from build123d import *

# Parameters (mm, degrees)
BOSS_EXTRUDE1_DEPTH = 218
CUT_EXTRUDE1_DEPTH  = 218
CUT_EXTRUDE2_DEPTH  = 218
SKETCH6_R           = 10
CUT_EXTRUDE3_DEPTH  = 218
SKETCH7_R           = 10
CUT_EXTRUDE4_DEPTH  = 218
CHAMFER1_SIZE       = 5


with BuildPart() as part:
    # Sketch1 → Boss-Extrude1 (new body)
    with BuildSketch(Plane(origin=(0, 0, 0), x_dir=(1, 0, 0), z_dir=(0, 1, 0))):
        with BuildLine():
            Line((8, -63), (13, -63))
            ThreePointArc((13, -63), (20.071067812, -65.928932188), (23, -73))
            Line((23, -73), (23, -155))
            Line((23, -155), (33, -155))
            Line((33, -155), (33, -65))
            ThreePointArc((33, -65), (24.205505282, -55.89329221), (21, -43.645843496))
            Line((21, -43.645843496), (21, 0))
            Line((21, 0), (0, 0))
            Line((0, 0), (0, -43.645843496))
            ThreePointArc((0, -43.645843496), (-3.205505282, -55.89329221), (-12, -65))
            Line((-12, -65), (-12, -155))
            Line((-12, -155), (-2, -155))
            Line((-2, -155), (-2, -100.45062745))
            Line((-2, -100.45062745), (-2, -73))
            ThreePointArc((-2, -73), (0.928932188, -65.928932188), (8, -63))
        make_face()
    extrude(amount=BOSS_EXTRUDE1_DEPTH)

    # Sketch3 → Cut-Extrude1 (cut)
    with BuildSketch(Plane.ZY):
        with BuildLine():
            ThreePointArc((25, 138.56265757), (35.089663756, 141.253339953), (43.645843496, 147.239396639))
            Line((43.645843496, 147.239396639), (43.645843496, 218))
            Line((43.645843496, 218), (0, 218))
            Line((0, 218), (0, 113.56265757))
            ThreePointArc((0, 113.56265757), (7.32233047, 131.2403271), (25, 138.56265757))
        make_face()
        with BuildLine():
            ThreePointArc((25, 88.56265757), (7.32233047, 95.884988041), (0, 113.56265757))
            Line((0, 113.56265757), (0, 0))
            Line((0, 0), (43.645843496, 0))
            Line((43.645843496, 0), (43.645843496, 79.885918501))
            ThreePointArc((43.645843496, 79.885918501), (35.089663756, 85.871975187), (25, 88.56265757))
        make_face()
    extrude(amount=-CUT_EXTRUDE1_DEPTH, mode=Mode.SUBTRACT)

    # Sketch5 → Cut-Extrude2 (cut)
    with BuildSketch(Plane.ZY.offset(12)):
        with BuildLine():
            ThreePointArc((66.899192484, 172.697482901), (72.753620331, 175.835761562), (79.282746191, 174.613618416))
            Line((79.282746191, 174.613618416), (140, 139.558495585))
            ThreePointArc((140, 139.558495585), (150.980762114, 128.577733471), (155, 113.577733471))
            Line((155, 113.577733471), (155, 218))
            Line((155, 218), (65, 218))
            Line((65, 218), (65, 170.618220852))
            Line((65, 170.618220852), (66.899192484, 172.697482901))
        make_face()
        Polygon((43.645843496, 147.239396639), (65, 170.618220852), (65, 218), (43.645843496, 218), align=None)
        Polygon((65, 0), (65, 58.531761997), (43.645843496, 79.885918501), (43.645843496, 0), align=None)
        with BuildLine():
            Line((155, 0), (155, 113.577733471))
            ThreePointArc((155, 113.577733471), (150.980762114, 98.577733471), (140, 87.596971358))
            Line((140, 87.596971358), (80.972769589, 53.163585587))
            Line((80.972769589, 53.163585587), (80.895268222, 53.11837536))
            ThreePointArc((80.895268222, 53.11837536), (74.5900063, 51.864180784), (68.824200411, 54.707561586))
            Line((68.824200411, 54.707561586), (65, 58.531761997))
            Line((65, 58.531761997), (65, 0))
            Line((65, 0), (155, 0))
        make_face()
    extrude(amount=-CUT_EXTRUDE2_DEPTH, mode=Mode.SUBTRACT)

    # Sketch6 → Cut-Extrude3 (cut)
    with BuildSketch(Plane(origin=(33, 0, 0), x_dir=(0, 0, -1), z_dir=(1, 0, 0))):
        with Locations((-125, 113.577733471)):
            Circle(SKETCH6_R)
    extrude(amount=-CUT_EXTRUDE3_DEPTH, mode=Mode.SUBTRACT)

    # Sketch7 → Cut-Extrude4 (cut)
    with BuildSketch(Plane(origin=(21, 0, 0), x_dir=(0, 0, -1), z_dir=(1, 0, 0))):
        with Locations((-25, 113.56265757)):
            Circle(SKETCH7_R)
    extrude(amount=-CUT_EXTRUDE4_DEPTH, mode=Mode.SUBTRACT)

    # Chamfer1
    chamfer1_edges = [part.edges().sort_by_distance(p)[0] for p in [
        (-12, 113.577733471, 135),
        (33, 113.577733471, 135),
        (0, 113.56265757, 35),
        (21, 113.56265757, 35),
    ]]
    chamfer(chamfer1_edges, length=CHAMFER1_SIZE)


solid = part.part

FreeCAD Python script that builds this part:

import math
import FreeCAD as App
import Part
import Sketcher
from FreeCAD import Vector
Q = App.Units.Quantity


def edges_at(feature, points):
    """Names of the edges that pass closest to the given points."""
    edges = feature.Shape.Edges
    near = lambda p: min(range(len(edges)), key=lambda i: edges[i].distToShape(Part.Vertex(*p))[0])
    return sorted({f"Edge{near(p) + 1}" for p in points})

doc = App.newDocument("Part")
body = doc.addObject("PartDesign::Body", "Body")

sketch1 = body.newObject("Sketcher::SketchObject", "Sketch")
sketch1.AttachmentSupport = (doc.getObject("XZ_Plane"), [""])
sketch1.MapMode = "FlatFace"
sketch1.addGeometry(Part.LineSegment(Vector(8, 63, 0), Vector(13, 63, 0)), False)
sketch1.addGeometry(Part.ArcOfCircle(Part.Circle(Vector(13, 73, 0), Vector(0, 0, 1), 10), math.radians(-90), math.radians(0)), False)
sketch1.addGeometry(Part.LineSegment(Vector(23, 73, 0), Vector(23, 155, 0)), False)
sketch1.addGeometry(Part.LineSegment(Vector(23, 155, 0), Vector(33, 155, 0)), False)
sketch1.addGeometry(Part.LineSegment(Vector(33, 155, 0), Vector(33, 65, 0)), False)
sketch1.addGeometry(Part.ArcOfCircle(Part.Circle(Vector(46, 43.645843, 0), Vector(0, 0, 1), 25), math.radians(121.332251), math.radians(180)), False)
sketch1.addGeometry(Part.LineSegment(Vector(21, 43.645843, 0), Vector(21, 0, 0)), False)
sketch1.addGeometry(Part.LineSegment(Vector(21, 0, 0), Vector(0, 0, 0)), False)
sketch1.addGeometry(Part.LineSegment(Vector(0, 0, 0), Vector(0, 43.645843, 0)), False)
sketch1.addGeometry(Part.ArcOfCircle(Part.Circle(Vector(-25, 43.645843, 0), Vector(0, 0, 1), 25), math.radians(0), math.radians(58.667749)), False)
sketch1.addGeometry(Part.LineSegment(Vector(-12, 65, 0), Vector(-12, 155, 0)), False)
sketch1.addGeometry(Part.LineSegment(Vector(-12, 155, 0), Vector(-2, 155, 0)), False)
sketch1.addGeometry(Part.LineSegment(Vector(-2, 155, 0), Vector(-2, 73, 0)), False)
sketch1.addGeometry(Part.ArcOfCircle(Part.Circle(Vector(8, 73, 0), Vector(0, 0, 1), 10), math.radians(180), math.radians(270)), False)
sketch1.addConstraint(Sketcher.Constraint("Tangent", 0, 2, 1, 1))
sketch1.addConstraint(Sketcher.Constraint("Tangent", 1, 2, 2, 1))
sketch1.addConstraint(Sketcher.Constraint("Coincident", 2, 2, 3, 1))
sketch1.addConstraint(Sketcher.Constraint("Coincident", 3, 2, 4, 1))
sketch1.addConstraint(Sketcher.Constraint("Coincident", 4, 2, 5, 1))
sketch1.addConstraint(Sketcher.Constraint("Tangent", 5, 2, 6, 1))
sketch1.addConstraint(Sketcher.Constraint("Coincident", 6, 2, 7, 1))
sketch1.addConstraint(Sketcher.Constraint("Coincident", 7, 2, 8, 1))
sketch1.addConstraint(Sketcher.Constraint("Tangent", 8, 2, 9, 1))
sketch1.addConstraint(Sketcher.Constraint("Coincident", 9, 2, 10, 1))
sketch1.addConstraint(Sketcher.Constraint("Coincident", 10, 2, 11, 1))
sketch1.addConstraint(Sketcher.Constraint("Coincident", 11, 2, 12, 1))
sketch1.addConstraint(Sketcher.Constraint("Tangent", 12, 2, 13, 1))
sketch1.addConstraint(Sketcher.Constraint("Tangent", 13, 2, 0, 1))
sketch1.addConstraint(Sketcher.Constraint("Horizontal", 0))
sketch1.addConstraint(Sketcher.Constraint("Vertical", 2))
sketch1.addConstraint(Sketcher.Constraint("Horizontal", 3))
sketch1.addConstraint(Sketcher.Constraint("Vertical", 4))
sketch1.addConstraint(Sketcher.Constraint("Vertical", 6))
sketch1.addConstraint(Sketcher.Constraint("Horizontal", 7))
sketch1.addConstraint(Sketcher.Constraint("Vertical", 8))
sketch1.addConstraint(Sketcher.Constraint("Vertical", 10))
sketch1.addConstraint(Sketcher.Constraint("Horizontal", 11))
sketch1.addConstraint(Sketcher.Constraint("Vertical", 12))
sketch1.addConstraint(Sketcher.Constraint("Coincident", 7, 2, -1, 1))
sketch1.addConstraint(Sketcher.Constraint("Equal", 5, 9))
sketch1.addConstraint(Sketcher.Constraint("Equal", 1, 13))
sketch1.addConstraint(Sketcher.Constraint("Horizontal", 5, 3, 9, 3))
sketch1.addConstraint(Sketcher.Constraint("Horizontal", 4, 2, 9, 2))
sketch1.addConstraint(Sketcher.Constraint("Horizontal", 3, 2, 10, 2))
sketch1.addConstraint(Sketcher.Constraint("Equal", 3, 11))
sketch1.addConstraint(Sketcher.Constraint("Radius", 1, Q("10 mm")))
sketch1.addConstraint(Sketcher.Constraint("Radius", 5, Q("25 mm")))
sketch1.addConstraint(Sketcher.Constraint("DistanceX", 0, 1, 0, 2, Q("5 mm")))
sketch1.addConstraint(Sketcher.Constraint("DistanceX", 3, 1, 3, 2, Q("10 mm")))
sketch1.addConstraint(Sketcher.Constraint("DistanceX", 7, 2, 7, 1, Q("21 mm")))
sketch1.addConstraint(Sketcher.Constraint("DistanceY", 2, 1, 2, 2, Q("82 mm")))
sketch1.addConstraint(Sketcher.Constraint("DistanceY", 4, 2, 4, 1, Q("90 mm")))
sketch1.addConstraint(Sketcher.Constraint("DistanceY", -1, 1, 1, 3, Q("73 mm")))
pad1 = body.newObject("PartDesign::Pad", "Pad")
pad1.Profile = sketch1
pad1.Length = 218
pad1.Reversed = True

sketch2 = body.newObject("Sketcher::SketchObject", "Sketch001")
sketch2.AttachmentSupport = (doc.getObject("YZ_Plane"), [""])
sketch2.MapMode = "FlatFace"
sketch2.addGeometry(Part.ArcOfCircle(Part.Circle(Vector(168.4526, 22.43264, 0), Vector(0, 0, 1), 30), math.radians(135), math.radians(175.090699)), False)
sketch2.addGeometry(Part.LineSegment(Vector(147.239397, 43.645843, 0), Vector(218, 43.645843, 0)), False)
sketch2.addGeometry(Part.LineSegment(Vector(218, 43.645843, 0), Vector(218, 0, 0)), False)
sketch2.addGeometry(Part.LineSegment(Vector(218, 0, 0), Vector(113.562658, 0, 0)), False)
sketch2.addGeometry(Part.ArcOfCircle(Part.Circle(Vector(113.562658, 25, 0), Vector(0, 0, 1), 25), math.radians(-90), math.radians(0)), False)
sketch2.addGeometry(Part.ArcOfCircle(Part.Circle(Vector(113.562658, 25, 0), Vector(0, 0, 1), 25), math.radians(-180), math.radians(-90)), False)
sketch2.addGeometry(Part.LineSegment(Vector(113.562658, 0, 0), Vector(0, 0, 0)), False)
sketch2.addGeometry(Part.LineSegment(Vector(0, 0, 0), Vector(0, 43.645843, 0)), False)
sketch2.addGeometry(Part.LineSegment(Vector(0, 43.645843, 0), Vector(79.885919, 43.645843, 0)), False)
sketch2.addGeometry(Part.ArcOfCircle(Part.Circle(Vector(58.672715, 22.43264, 0), Vector(0, 0, 1), 30), math.radians(4.909301), math.radians(45)), False)
sketch2.addConstraint(Sketcher.Constraint("Coincident", 0, 1, 1, 1))
sketch2.addConstraint(Sketcher.Constraint("Coincident", 1, 2, 2, 1))
sketch2.addConstraint(Sketcher.Constraint("Coincident", 2, 2, 3, 1))
sketch2.addConstraint(Sketcher.Constraint("Tangent", 3, 2, 4, 1))
sketch2.addConstraint(Sketcher.Constraint("Coincident", 4, 2, 0, 2))
sketch2.addConstraint(Sketcher.Constraint("Tangent", 5, 2, 6, 1))
sketch2.addConstraint(Sketcher.Constraint("Coincident", 6, 2, 7, 1))
sketch2.addConstraint(Sketcher.Constraint("Coincident", 7, 2, 8, 1))
sketch2.addConstraint(Sketcher.Constraint("Coincident", 8, 2, 9, 2))
sketch2.addConstraint(Sketcher.Constraint("Coincident", 9, 1, 5, 1))
sketch2.addConstraint(Sketcher.Constraint("Horizontal", 1))
sketch2.addConstraint(Sketcher.Constraint("Vertical", 2))
sketch2.addConstraint(Sketcher.Constraint("Horizontal", 3))
sketch2.addConstraint(Sketcher.Constraint("Horizontal", 6))
sketch2.addConstraint(Sketcher.Constraint("Vertical", 7))
sketch2.addConstraint(Sketcher.Constraint("Horizontal", 8))
sketch2.addConstraint(Sketcher.Constraint("Coincident", 6, 2, -1, 1))
sketch2.addConstraint(Sketcher.Constraint("Coincident", 5, 3, 4, 3))
sketch2.addConstraint(Sketcher.Constraint("Equal", 4, 5))
sketch2.addConstraint(Sketcher.Constraint("Equal", 0, 9))
sketch2.addConstraint(Sketcher.Constraint("Horizontal", 0, 3, 9, 3))
sketch2.addConstraint(Sketcher.Constraint("Horizontal", 5, 3, 4, 2))
sketch2.addConstraint(Sketcher.Constraint("Horizontal", 1, 2, 7, 2))
sketch2.addConstraint(Sketcher.Constraint("Horizontal", 4, 2, 9, 1))
sketch2.addConstraint(Sketcher.Constraint("Radius", 0, Q("30 mm")))
sketch2.addConstraint(Sketcher.Constraint("Radius", 4, Q("25 mm")))
sketch2.addConstraint(Sketcher.Constraint("DistanceX", -1, 1, 1, 2, Q("218 mm")))
sketch2.addConstraint(Sketcher.Constraint("DistanceX", 8, 1, 8, 2, Q("79.885919 mm")))
sketch2.addConstraint(Sketcher.Constraint("DistanceX", -1, 1, 0, 3, Q("168.4526 mm")))
sketch2.addConstraint(Sketcher.Constraint("DistanceX", 1, 1, 1, 2, Q("70.760603 mm")))
pocket1 = body.newObject("PartDesign::Pocket", "Pocket")
pocket1.Profile = sketch2
pocket1.Length = 218
pocket1.Reversed = True

sketch3 = body.newObject("Sketcher::SketchObject", "Sketch002")
sketch3.AttachmentSupport = (doc.getObject("YZ_Plane"), [""])
sketch3.MapMode = "FlatFace"
sketch3.AttachmentOffset = App.Placement(Vector(0, 0, -12), App.Rotation())
sketch3.addGeometry(Part.ArcOfCircle(Part.Circle(Vector(165.953364, 74.282746, 0), Vector(0, 0, 1), 10), math.radians(-47.591506), math.radians(30)), False)
sketch3.addGeometry(Part.LineSegment(Vector(174.613618, 79.282746, 0), Vector(139.558496, 140, 0)), False)
sketch3.addGeometry(Part.ArcOfCircle(Part.Circle(Vector(113.577733, 125, 0), Vector(0, 0, 1), 30), math.radians(30), math.radians(90)), False)
sketch3.addGeometry(Part.LineSegment(Vector(113.577733, 155, 0), Vector(218, 155, 0)), False)
sketch3.addGeometry(Part.LineSegment(Vector(218, 155, 0), Vector(218, 43.645843, 0)), False)
sketch3.addGeometry(Part.LineSegment(Vector(218, 43.645843, 0), Vector(147.239397, 43.645843, 0)), False)
sketch3.addGeometry(Part.LineSegment(Vector(147.239397, 43.645843, 0), Vector(170.618221, 65, 0)), False)
sketch3.addGeometry(Part.LineSegment(Vector(170.618221, 65, 0), Vector(172.697483, 66.899192, 0)), False)
sketch3.addGeometry(Part.LineSegment(Vector(79.885919, 43.645843, 0), Vector(0, 43.645843, 0)), False)
sketch3.addGeometry(Part.LineSegment(Vector(0, 43.645843, 0), Vector(0, 155, 0)), False)
sketch3.addGeometry(Part.LineSegment(Vector(0, 155, 0), Vector(113.577733, 155, 0)), False)
sketch3.addGeometry(Part.ArcOfCircle(Part.Circle(Vector(113.577733, 125, 0), Vector(0, 0, 1), 30), math.radians(90), math.radians(150)), False)
sketch3.addGeometry(Part.LineSegment(Vector(87.596971, 140, 0), Vector(53.163586, 80.97277, 0)), False)
sketch3.addGeometry(Part.LineSegment(Vector(53.163586, 80.97277, 0), Vector(53.118375, 80.895268, 0)), False)
sketch3.addGeometry(Part.ArcOfCircle(Part.Circle(Vector(61.778629, 75.895268, 0), Vector(0, 0, 1), 10), math.radians(150), math.radians(225)), False)
sketch3.addGeometry(Part.LineSegment(Vector(54.707562, 68.8242, 0), Vector(79.885919, 43.645843, 0)), False)
sketch3.addConstraint(Sketcher.Constraint("Tangent", 0, 2, 1, 1))
sketch3.addConstraint(Sketcher.Constraint("Tangent", 1, 2, 2, 1))
sketch3.addConstraint(Sketcher.Constraint("Tangent", 2, 2, 3, 1))
sketch3.addConstraint(Sketcher.Constraint("Coincident", 3, 2, 4, 1))
sketch3.addConstraint(Sketcher.Constraint("Coincident", 4, 2, 5, 1))
sketch3.addConstraint(Sketcher.Constraint("Coincident", 5, 2, 6, 1))
sketch3.addConstraint(Sketcher.Constraint("Coincident", 6, 2, 7, 1))
sketch3.addConstraint(Sketcher.Constraint("Tangent", 7, 2, 0, 1))
sketch3.addConstraint(Sketcher.Constraint("Coincident", 8, 2, 9, 1))
sketch3.addConstraint(Sketcher.Constraint("Coincident", 9, 2, 10, 1))
sketch3.addConstraint(Sketcher.Constraint("Tangent", 10, 2, 11, 1))
sketch3.addConstraint(Sketcher.Constraint("Coincident", 11, 2, 12, 1))
sketch3.addConstraint(Sketcher.Constraint("Coincident", 12, 2, 13, 1))
sketch3.addConstraint(Sketcher.Constraint("Coincident", 13, 2, 14, 1))
sketch3.addConstraint(Sketcher.Constraint("Tangent", 14, 2, 15, 1))
sketch3.addConstraint(Sketcher.Constraint("Coincident", 15, 2, 8, 1))
sketch3.addConstraint(Sketcher.Constraint("Horizontal", 3))
sketch3.addConstraint(Sketcher.Constraint("Vertical", 4))
sketch3.addConstraint(Sketcher.Constraint("Horizontal", 5))
sketch3.addConstraint(Sketcher.Constraint("Horizontal", 8))
sketch3.addConstraint(Sketcher.Constraint("Vertical", 9))
sketch3.addConstraint(Sketcher.Constraint("Horizontal", 10))
sketch3.addConstraint(Sketcher.Constraint("Coincident", 11, 3, 2, 3))
sketch3.addConstraint(Sketcher.Constraint("Equal", 2, 11))
sketch3.addConstraint(Sketcher.Constraint("Equal", 0, 14))
sketch3.addConstraint(Sketcher.Constraint("PointOnObject", 8, 2, -2))
sketch3.addConstraint(Sketcher.Constraint("Parallel", 6, 7))
sketch3.addConstraint(Sketcher.Constraint("Parallel", 12, 13))
sketch3.addConstraint(Sketcher.Constraint("Horizontal", 5, 2, 8, 2))
sketch3.addConstraint(Sketcher.Constraint("Horizontal", 1, 2, 11, 2))
sketch3.addConstraint(Sketcher.Constraint("Radius", 0, Q("10 mm")))
sketch3.addConstraint(Sketcher.Constraint("Radius", 2, Q("30 mm")))
sketch3.addConstraint(Sketcher.Constraint("Angle", 1, Q("120 deg")))
sketch3.addConstraint(Sketcher.Constraint("Angle", 15, Q("-45 deg")))
sketch3.addConstraint(Sketcher.Constraint("DistanceY", -1, 1, 2, 3, Q("125 mm")))
sketch3.addConstraint(Sketcher.Constraint("DistanceX", -1, 1, 3, 2, Q("218 mm")))
sketch3.addConstraint(Sketcher.Constraint("DistanceY", -1, 1, 6, 2, Q("65 mm")))
sketch3.addConstraint(Sketcher.Constraint("DistanceY", 14, 3, 13, 2, Q("5 mm")))
sketch3.addConstraint(Sketcher.Constraint("DistanceX", 8, 2, 8, 1, Q("79.885919 mm")))
sketch3.addConstraint(Sketcher.Constraint("DistanceY", -1, 1, 14, 2, Q("68.8242 mm")))
sketch3.addConstraint(Sketcher.Constraint("DistanceY", 14, 3, 12, 2, Q("5.077501 mm")))
sketch3.addConstraint(Sketcher.Constraint("Distance", 12, Q("68.336462 mm")))
sketch3.addConstraint(Sketcher.Constraint("DistanceX", 3, 1, 3, 2, Q("104.422267 mm")))
sketch3.addConstraint(Sketcher.Constraint("DistanceX", 5, 2, 5, 1, Q("70.760603 mm")))
sketch3.addConstraint(Sketcher.Constraint("DistanceX", -1, 1, 0, 2, Q("174.613618 mm")))
pocket2 = body.newObject("PartDesign::Pocket", "Pocket001")
pocket2.Profile = sketch3
pocket2.Length = 218
pocket2.Reversed = True

sketch4 = body.newObject("Sketcher::SketchObject", "Sketch003")
sketch4.AttachmentSupport = (doc.getObject("YZ_Plane"), [""])
sketch4.MapMode = "FlatFace"
sketch4.AttachmentOffset = App.Placement(Vector(0, 0, 33), App.Rotation())
sketch4.addGeometry(Part.Circle(Vector(113.577733, 125, 0), Vector(0, 0, 1), 10), False)
sketch4.addConstraint(Sketcher.Constraint("Diameter", 0, Q("20 mm")))
sketch4.addConstraint(Sketcher.Constraint("DistanceY", -1, 1, 0, 3, Q("125 mm")))
sketch4.addConstraint(Sketcher.Constraint("DistanceX", -1, 1, 0, 3, Q("113.577733 mm")))
pocket3 = body.newObject("PartDesign::Pocket", "Pocket002")
pocket3.Profile = sketch4
pocket3.Length = 218

sketch5 = body.newObject("Sketcher::SketchObject", "Sketch004")
sketch5.AttachmentSupport = (doc.getObject("YZ_Plane"), [""])
sketch5.MapMode = "FlatFace"
sketch5.AttachmentOffset = App.Placement(Vector(0, 0, 21), App.Rotation())
sketch5.addGeometry(Part.Circle(Vector(113.562658, 25, 0), Vector(0, 0, 1), 10), False)
sketch5.addConstraint(Sketcher.Constraint("Diameter", 0, Q("20 mm")))
sketch5.addConstraint(Sketcher.Constraint("DistanceY", -1, 1, 0, 3, Q("25 mm")))
sketch5.addConstraint(Sketcher.Constraint("DistanceX", -1, 1, 0, 3, Q("113.562658 mm")))
pocket4 = body.newObject("PartDesign::Pocket", "Pocket003")
pocket4.Profile = sketch5
pocket4.Length = 218
doc.recompute()

chamfer = body.newObject("PartDesign::Chamfer", "Chamfer")
chamfer.Base = (pocket4, edges_at(pocket4, [
    (-12, 113.578, 135),
    (33, 113.578, 135),
    (0, 113.563, 35),
    (21, 113.563, 35),
]))
chamfer.Size = 5

doc.recompute()
